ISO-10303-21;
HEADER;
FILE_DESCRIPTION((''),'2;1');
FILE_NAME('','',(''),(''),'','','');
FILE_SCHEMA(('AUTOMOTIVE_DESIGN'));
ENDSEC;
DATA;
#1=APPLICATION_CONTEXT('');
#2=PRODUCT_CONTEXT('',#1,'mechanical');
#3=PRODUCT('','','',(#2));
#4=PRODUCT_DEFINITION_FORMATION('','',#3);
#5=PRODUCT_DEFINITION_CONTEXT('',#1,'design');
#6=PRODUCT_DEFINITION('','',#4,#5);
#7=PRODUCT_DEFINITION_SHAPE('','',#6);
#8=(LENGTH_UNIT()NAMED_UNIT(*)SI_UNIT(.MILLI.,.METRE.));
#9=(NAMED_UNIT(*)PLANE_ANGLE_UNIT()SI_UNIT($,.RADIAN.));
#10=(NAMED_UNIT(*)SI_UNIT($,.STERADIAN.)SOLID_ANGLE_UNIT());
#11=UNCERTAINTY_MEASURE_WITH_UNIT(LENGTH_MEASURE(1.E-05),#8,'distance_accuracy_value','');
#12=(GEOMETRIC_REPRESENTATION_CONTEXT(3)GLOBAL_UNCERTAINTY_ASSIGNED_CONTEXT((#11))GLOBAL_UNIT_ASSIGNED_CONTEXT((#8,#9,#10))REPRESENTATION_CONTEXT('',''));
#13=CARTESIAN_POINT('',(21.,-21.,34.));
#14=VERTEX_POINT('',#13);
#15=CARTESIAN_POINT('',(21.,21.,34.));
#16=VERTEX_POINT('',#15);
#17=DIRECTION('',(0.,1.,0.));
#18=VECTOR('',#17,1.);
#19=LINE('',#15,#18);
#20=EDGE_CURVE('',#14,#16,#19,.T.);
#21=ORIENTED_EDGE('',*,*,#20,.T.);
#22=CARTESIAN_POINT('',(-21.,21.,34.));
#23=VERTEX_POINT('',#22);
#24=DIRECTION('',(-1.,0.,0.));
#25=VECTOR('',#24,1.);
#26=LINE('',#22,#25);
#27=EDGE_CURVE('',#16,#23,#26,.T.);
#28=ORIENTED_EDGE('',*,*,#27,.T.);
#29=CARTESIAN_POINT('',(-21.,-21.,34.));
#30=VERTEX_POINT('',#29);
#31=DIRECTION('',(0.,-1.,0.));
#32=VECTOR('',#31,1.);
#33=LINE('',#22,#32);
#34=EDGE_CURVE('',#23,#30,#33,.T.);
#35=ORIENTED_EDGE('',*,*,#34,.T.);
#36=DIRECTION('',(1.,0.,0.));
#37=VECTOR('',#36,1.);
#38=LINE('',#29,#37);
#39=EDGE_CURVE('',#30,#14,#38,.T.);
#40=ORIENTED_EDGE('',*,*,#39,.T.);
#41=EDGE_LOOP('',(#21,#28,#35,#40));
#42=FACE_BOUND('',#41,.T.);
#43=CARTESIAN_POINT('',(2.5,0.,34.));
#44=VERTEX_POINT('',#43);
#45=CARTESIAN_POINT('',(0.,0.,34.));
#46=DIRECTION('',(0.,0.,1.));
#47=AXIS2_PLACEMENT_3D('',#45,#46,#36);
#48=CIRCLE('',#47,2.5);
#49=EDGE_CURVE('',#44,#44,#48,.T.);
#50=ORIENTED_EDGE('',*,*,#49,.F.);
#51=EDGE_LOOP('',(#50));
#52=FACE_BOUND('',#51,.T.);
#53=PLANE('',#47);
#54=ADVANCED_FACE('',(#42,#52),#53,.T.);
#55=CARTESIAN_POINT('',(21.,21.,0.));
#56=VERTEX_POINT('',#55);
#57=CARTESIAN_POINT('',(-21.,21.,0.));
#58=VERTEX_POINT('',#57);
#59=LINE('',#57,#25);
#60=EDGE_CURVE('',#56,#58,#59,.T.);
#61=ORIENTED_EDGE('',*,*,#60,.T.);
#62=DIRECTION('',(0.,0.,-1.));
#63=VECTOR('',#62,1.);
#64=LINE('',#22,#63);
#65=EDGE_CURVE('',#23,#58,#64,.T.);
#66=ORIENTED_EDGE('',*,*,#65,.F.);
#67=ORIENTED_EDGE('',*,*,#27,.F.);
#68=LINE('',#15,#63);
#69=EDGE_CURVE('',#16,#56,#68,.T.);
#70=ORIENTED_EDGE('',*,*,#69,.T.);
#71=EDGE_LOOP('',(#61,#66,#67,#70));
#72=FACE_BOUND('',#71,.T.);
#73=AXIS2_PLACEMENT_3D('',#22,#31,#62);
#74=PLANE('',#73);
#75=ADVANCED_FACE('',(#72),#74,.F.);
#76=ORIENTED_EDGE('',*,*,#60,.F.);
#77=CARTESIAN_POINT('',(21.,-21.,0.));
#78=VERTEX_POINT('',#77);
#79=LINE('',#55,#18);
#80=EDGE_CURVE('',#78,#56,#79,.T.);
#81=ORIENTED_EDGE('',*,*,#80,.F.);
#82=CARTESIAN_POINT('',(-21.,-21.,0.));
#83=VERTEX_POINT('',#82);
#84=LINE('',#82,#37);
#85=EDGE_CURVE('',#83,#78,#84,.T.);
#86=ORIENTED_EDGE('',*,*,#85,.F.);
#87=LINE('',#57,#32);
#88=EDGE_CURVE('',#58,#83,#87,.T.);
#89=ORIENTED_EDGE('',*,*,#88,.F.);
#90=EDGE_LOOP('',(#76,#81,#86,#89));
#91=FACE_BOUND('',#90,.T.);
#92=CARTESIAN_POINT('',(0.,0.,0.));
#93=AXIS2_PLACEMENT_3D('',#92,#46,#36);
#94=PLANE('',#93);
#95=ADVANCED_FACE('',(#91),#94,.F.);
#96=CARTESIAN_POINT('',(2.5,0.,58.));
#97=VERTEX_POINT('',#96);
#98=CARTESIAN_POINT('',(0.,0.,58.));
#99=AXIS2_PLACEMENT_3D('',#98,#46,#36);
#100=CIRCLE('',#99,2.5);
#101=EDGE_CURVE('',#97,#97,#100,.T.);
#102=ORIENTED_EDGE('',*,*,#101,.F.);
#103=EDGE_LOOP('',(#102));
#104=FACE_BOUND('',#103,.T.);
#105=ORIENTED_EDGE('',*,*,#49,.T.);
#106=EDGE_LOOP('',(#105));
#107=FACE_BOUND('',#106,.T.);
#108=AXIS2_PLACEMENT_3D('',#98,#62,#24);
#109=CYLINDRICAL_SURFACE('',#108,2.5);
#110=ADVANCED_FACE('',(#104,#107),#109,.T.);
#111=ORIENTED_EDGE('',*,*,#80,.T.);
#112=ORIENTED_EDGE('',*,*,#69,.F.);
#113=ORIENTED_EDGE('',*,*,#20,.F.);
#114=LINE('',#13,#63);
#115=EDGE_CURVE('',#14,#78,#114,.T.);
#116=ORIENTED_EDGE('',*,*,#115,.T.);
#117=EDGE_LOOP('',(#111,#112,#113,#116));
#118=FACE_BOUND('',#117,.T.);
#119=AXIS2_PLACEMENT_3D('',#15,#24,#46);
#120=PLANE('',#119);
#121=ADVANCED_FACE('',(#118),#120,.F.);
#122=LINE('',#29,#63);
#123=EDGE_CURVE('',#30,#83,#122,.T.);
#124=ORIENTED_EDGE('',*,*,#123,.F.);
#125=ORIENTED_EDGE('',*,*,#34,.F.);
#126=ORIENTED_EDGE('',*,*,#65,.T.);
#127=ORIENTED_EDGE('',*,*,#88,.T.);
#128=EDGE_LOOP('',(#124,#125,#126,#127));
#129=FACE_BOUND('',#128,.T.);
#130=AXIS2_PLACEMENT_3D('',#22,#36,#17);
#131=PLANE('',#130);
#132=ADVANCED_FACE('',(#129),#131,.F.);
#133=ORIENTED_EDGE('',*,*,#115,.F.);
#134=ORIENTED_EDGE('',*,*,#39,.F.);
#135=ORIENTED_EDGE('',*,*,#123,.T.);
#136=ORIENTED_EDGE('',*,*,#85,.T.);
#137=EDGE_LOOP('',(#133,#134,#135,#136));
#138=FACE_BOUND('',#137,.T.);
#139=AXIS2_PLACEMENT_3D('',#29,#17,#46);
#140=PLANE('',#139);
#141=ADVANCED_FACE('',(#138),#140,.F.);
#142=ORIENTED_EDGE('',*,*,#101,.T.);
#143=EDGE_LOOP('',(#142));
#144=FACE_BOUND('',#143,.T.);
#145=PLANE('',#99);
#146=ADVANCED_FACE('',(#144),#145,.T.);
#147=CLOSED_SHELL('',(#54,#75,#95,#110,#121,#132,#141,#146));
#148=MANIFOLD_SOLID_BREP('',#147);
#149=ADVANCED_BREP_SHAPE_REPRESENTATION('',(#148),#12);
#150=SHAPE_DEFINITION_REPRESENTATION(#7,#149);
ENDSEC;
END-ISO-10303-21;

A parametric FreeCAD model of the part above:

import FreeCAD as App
import Part
import Sketcher

V = App.Vector


def add_polygon(sketch, points):
    """Adds a closed chain of lines whose ends are joined by coincident constraints."""
    first, n = sketch.GeometryCount, len(points)
    for a, b in zip(points, points[1:] + points[:1]):
        sketch.addGeometry(Part.LineSegment(App.Vector(*a, 0), App.Vector(*b, 0)), False)
    for i in range(n):
        sketch.addConstraint(Sketcher.Constraint("Coincident", first + i, 2, first + (i + 1) % n, 1))

doc = App.newDocument("Part")
body = doc.addObject("PartDesign::Body", "Body")

# Sketch on XY plane
sketch1 = body.newObject("Sketcher::SketchObject", "Sketch")
sketch1.AttachmentSupport = (doc.getObject("XY_Plane"), [""])
sketch1.MapMode = "FlatFace"
add_polygon(sketch1, [(-21, 21), (-21, -21), (21, -21), (21, 21)])  # lines 0-3
sketch1.addConstraint(Sketcher.Constraint("Vertical", 0))
sketch1.addConstraint(Sketcher.Constraint("Horizontal", 1))
sketch1.addConstraint(Sketcher.Constraint("Vertical", 2))
sketch1.addConstraint(Sketcher.Constraint("Horizontal", 3))
sketch1.addConstraint(Sketcher.Constraint("Symmetric", 0, 2, 2, 2, -1, 1))
sketch1.addConstraint(Sketcher.Constraint("Equal", 3, 0))
sketch1.addConstraint(Sketcher.Constraint("DistanceX", 1, 1, 1, 2, 42.0))
pad1 = body.newObject("PartDesign::Pad", "Pad")
pad1.Profile = sketch1
pad1.Length = 34

# Sketch on XY plane
sketch2 = body.newObject("Sketcher::SketchObject", "Sketch001")
sketch2.AttachmentSupport = (doc.getObject("XY_Plane"), [""])
sketch2.MapMode = "FlatFace"
sketch2.AttachmentOffset = App.Placement(V(0, 0, 34), App.Rotation())
sketch2.addGeometry(Part.Circle(V(0, 0, 0), V(0, 0, 1), 2.5), False)
sketch2.addConstraint(Sketcher.Constraint("Coincident", 0, 3, -1, 1))
sketch2.addConstraint(Sketcher.Constraint("Diameter", 0, 5.0))
pad2 = body.newObject("PartDesign::Pad", "Pad001")
pad2.Profile = sketch2
pad2.Length = 24

doc.recompute()
